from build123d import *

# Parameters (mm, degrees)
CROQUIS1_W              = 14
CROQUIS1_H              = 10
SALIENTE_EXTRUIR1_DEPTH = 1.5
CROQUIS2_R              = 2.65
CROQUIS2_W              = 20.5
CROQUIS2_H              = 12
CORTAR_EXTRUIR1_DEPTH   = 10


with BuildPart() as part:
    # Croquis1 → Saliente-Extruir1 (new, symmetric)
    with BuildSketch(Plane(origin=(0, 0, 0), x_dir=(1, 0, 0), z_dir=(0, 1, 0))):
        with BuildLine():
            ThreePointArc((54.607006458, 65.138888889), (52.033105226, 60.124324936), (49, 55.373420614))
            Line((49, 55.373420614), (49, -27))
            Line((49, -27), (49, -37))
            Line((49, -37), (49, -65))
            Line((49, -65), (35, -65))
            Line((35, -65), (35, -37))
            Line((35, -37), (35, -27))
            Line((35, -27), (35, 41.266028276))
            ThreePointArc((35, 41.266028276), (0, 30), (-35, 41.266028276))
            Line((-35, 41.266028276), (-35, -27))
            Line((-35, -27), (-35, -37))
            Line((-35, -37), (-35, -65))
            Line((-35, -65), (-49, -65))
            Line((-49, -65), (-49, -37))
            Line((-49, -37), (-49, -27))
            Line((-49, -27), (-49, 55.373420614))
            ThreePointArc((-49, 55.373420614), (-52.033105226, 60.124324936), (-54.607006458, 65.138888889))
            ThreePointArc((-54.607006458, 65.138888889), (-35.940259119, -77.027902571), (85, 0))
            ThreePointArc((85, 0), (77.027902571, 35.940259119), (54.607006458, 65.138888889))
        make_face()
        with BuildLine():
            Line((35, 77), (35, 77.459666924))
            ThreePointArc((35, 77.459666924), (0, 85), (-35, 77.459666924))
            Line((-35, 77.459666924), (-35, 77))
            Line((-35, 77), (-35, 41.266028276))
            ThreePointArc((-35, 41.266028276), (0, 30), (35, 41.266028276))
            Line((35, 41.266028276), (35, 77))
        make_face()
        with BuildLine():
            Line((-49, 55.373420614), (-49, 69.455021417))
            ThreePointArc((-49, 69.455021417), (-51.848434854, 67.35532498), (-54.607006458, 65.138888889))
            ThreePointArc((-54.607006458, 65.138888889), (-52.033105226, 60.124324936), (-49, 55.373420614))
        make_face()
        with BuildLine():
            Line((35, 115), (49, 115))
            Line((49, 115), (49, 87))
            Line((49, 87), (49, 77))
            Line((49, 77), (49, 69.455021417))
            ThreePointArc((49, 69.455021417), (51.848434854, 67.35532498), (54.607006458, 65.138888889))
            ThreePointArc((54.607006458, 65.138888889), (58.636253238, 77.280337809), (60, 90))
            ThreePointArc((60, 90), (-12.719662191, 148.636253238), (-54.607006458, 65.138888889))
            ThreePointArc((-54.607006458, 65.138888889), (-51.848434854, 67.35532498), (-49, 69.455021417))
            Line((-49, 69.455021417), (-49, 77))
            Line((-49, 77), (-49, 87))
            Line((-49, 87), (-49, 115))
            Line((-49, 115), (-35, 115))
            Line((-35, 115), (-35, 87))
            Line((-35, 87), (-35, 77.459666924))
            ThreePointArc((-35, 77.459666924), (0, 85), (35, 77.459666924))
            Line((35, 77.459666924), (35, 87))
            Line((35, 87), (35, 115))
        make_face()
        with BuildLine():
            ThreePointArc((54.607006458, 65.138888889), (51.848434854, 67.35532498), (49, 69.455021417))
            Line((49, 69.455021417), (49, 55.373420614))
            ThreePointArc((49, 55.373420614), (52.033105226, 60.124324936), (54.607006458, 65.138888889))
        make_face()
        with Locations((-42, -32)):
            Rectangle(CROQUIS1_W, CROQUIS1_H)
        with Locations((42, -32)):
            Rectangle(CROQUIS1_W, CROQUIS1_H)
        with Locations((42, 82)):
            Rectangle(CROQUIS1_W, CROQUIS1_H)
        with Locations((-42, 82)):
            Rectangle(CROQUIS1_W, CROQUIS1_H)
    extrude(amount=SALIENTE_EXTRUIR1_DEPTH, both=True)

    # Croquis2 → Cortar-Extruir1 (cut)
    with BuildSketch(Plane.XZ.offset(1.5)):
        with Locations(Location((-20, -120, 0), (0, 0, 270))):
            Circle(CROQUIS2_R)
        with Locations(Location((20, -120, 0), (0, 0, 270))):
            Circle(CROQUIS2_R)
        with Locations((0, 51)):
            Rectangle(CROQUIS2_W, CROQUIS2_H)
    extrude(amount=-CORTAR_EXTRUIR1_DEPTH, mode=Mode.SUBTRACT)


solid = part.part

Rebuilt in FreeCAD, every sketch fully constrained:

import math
import FreeCAD as App
import Part
import Sketcher
Q = App.Units.Quantity


def add_polygon(sketch, points):
    """Adds a closed chain of lines whose ends are joined by coincident constraints."""
    first, n = sketch.GeometryCount, len(points)
    for a, b in zip(points, points[1:] + points[:1]):
        sketch.addGeometry(Part.LineSegment(App.Vector(*a, 0), App.Vector(*b, 0)), False)
    for i in range(n):
        sketch.addConstraint(Sketcher.Constraint("Coincident", first + i, 2, first + (i + 1) % n, 1))

doc = App.newDocument("Part")
params = doc.addObject("Spreadsheet::Sheet", "Params")
for row, (alias, value) in enumerate([
    ("sketch1_radius", "85 mm"),
    ("sketch1_radius2", "60 mm"),
    ("sketch1_width", "14 mm"),
    ("sketch1_height", "28 mm"),
    ("sketch1_height2", "104 mm"),
    ("pad1_length", "3 mm"),
    ("sketch2_diameter", "5.3 mm"),
    ("sketch2_height", "12 mm"),
    ("sketch2_width", "20.5 mm"),
    ("pocket1_length", "10 mm"),
], start=1):
    params.set(f"A{row}", alias)
    params.set(f"B{row}", "=" + value)
    params.setAlias(f"B{row}", alias)

body = doc.addObject("PartDesign::Body", "Body")

sketch1 = body.newObject("Sketcher::SketchObject", "Sketch")
sketch1.AttachmentSupport = (doc.getObject("XZ_Plane"), [""])
sketch1.MapMode = "FlatFace"
sketch1.addGeometry(Part.ArcOfCircle(Part.Circle(App.Vector(0, 0, 0), App.Vector(0, 0, 1), 85), math.radians(-50), math.radians(0)), False)
sketch1.addGeometry(Part.ArcOfCircle(Part.Circle(App.Vector(0, -90, 0), App.Vector(0, 0, 1), 60), math.radians(0), math.radians(24)), False)
sketch1.addGeometry(Part.ArcOfCircle(Part.Circle(App.Vector(0, -90, 0), App.Vector(0, 0, 1), 60), math.radians(156), math.radians(360)), False)
sketch1.addGeometry(Part.ArcOfCircle(Part.Circle(App.Vector(0, 0, 0), App.Vector(0, 0, 1), 85), math.radians(0), math.radians(230)), False)
add_polygon(sketch1, [(-35, 65), (-49, 65), (-49, 37), (-35, 37)])
add_polygon(sketch1, [(-49, 27), (-49, -77), (-35, -77), (-35, 27)])
add_polygon(sketch1, [(-49, -87), (-49, -115), (-35, -115), (-35, -87)])
add_polygon(sketch1, [(49, -115), (49, -87), (35, -87), (35, -115)])
add_polygon(sketch1, [(49, -77), (49, 27), (35, 27), (35, -77)])
add_polygon(sketch1, [(49, 37), (49, 65), (35, 65), (35, 37)])
sketch1.addConstraint([
    Sketcher.Constraint("Coincident", 0, 1, 1, 2),
    Sketcher.Constraint("Tangent", 1, 1, 2, 2),
    Sketcher.Constraint("Coincident", 2, 1, 3, 2),
    Sketcher.Constraint("Tangent", 3, 1, 0, 2),
    Sketcher.Constraint("Horizontal", 4),
    Sketcher.Constraint("Vertical", 5),
    Sketcher.Constraint("Horizontal", 6),
    Sketcher.Constraint("Vertical", 7),
    Sketcher.Constraint("Vertical", 8),
    Sketcher.Constraint("Horizontal", 9),
    Sketcher.Constraint("Vertical", 10),
    Sketcher.Constraint("Horizontal", 11),
    Sketcher.Constraint("Vertical", 12),
    Sketcher.Constraint("Horizontal", 13),
    Sketcher.Constraint("Vertical", 14),
    Sketcher.Constraint("Horizontal", 15),
    Sketcher.Constraint("Vertical", 16),
    Sketcher.Constraint("Horizontal", 17),
    Sketcher.Constraint("Vertical", 18),
    Sketcher.Constraint("Horizontal", 19),
    Sketcher.Constraint("Vertical", 20),
    Sketcher.Constraint("Horizontal", 21),
    Sketcher.Constraint("Vertical", 22),
    Sketcher.Constraint("Horizontal", 23),
    Sketcher.Constraint("Vertical", 24),
    Sketcher.Constraint("Horizontal", 25),
    Sketcher.Constraint("Vertical", 26),
    Sketcher.Constraint("Horizontal", 27),
    Sketcher.Constraint("Coincident", 0, 3, -1, 1),
    Sketcher.Constraint("Equal", 1, 2),
    Sketcher.Constraint("Equal", 0, 3),
    Sketcher.Constraint("Symmetric", 15, 2, 16, 2, -2),
    Sketcher.Constraint("Symmetric", 13, 2, 18, 2, -2),
    Sketcher.Constraint("Symmetric", 11, 2, 20, 2, -2),
    Sketcher.Constraint("Symmetric", 9, 2, 22, 2, -2),
    Sketcher.Constraint("Symmetric", 4, 2, 24, 2, -2),
    Sketcher.Constraint("Symmetric", 6, 2, 26, 2, -2),
    Sketcher.Constraint("PointOnObject", 1, 3, -2),
    Sketcher.Constraint("PointOnObject", 3, 1, -1),
    Sketcher.Constraint("Horizontal", 2, 3, 1, 1),
    Sketcher.Constraint("Vertical", 5, 2, 8, 2),
    Sketcher.Constraint("Vertical", 7, 2, 9, 2),
    Sketcher.Constraint("Vertical", 11, 2, 12, 2),
    Sketcher.Constraint("Vertical", 10, 2, 13, 2),
    Sketcher.Constraint("Equal", 7, 12),
    Sketcher.Constraint("Radius", 0, Q("85 mm")),
    Sketcher.Constraint("Radius", 1, Q("60 mm")),
    Sketcher.Constraint("DistanceX", 4, 2, 4, 1, Q("14 mm")),
    Sketcher.Constraint("DistanceY", 5, 2, 5, 1, Q("28 mm")),
    Sketcher.Constraint("DistanceY", 8, 2, 8, 1, Q("104 mm")),
    Sketcher.Constraint("DistanceY", 1, 3, -1, 1, Q("90 mm")),
    Sketcher.Constraint("DistanceX", 4, 2, -1, 1, Q("49 mm")),
    Sketcher.Constraint("DistanceY", -1, 1, 4, 2, Q("65 mm")),
    Sketcher.Constraint("DistanceY", 8, 2, -1, 1, Q("77 mm")),
    Sketcher.Constraint("DistanceY", 12, 2, -1, 1, Q("115 mm")),
])
sketch1.setExpression("Constraints[69]", "Params.sketch1_radius")
sketch1.setExpression("Constraints[70]", "Params.sketch1_radius2")
sketch1.setExpression("Constraints[71]", "Params.sketch1_width")
sketch1.setExpression("Constraints[72]", "Params.sketch1_height")
sketch1.setExpression("Constraints[73]", "Params.sketch1_height2")
pad1 = body.newObject("PartDesign::Pad", "Pad")
pad1.Profile = sketch1
pad1.setExpression("Length", "Params.pad1_length")
pad1.Midplane = True

sketch2 = body.newObject("Sketcher::SketchObject", "Sketch001")
sketch2.AttachmentSupport = (doc.getObject("XZ_Plane"), [""])
sketch2.MapMode = "FlatFace"
sketch2.AttachmentOffset = App.Placement(App.Vector(0, 0, 1.5), App.Rotation())
sketch2.addGeometry(Part.Circle(App.Vector(-20, -120, 0), App.Vector(0, 0, 1), 2.6), False)
sketch2.addGeometry(Part.Circle(App.Vector(20, -120, 0), App.Vector(0, 0, 1), 2.6), False)
add_polygon(sketch2, [(-10.2, 57), (-10.2, 45), (10.2, 45), (10.2, 57)])
sketch2.addConstraint([
    Sketcher.Constraint("Vertical", 2),
    Sketcher.Constraint("Horizontal", 3),
    Sketcher.Constraint("Vertical", 4),
    Sketcher.Constraint("Horizontal", 5),
    Sketcher.Constraint("Equal", 0, 1),
    Sketcher.Constraint("Symmetric", 0, 3, 1, 3, -2),
    Sketcher.Constraint("Diameter", 0, Q("5.3 mm")),
    Sketcher.Constraint("DistanceY", 2, 2, 2, 1, Q("12 mm")),
    Sketcher.Constraint("DistanceX", 3, 1, 3, 2, Q("20.5 mm")),
    Sketcher.Constraint("DistanceX", 0, 3, -1, 1, Q("20 mm")),
    Sketcher.Constraint("DistanceY", 0, 3, -1, 1, Q("120 mm")),
    Sketcher.Constraint("DistanceY", -1, 1, 2, 2, Q("45 mm")),
    Sketcher.Constraint("DistanceX", 2, 2, -1, 1, Q("10.25 mm")),
])
sketch2.setExpression("Constraints[10]", "Params.sketch2_diameter")
sketch2.setExpression("Constraints[11]", "Params.sketch2_height")
sketch2.setExpression("Constraints[12]", "Params.sketch2_width")
pocket1 = body.newObject("PartDesign::Pocket", "Pocket")
pocket1.Profile = sketch2
pocket1.setExpression("Length", "Params.pocket1_length")

doc.recompute()
